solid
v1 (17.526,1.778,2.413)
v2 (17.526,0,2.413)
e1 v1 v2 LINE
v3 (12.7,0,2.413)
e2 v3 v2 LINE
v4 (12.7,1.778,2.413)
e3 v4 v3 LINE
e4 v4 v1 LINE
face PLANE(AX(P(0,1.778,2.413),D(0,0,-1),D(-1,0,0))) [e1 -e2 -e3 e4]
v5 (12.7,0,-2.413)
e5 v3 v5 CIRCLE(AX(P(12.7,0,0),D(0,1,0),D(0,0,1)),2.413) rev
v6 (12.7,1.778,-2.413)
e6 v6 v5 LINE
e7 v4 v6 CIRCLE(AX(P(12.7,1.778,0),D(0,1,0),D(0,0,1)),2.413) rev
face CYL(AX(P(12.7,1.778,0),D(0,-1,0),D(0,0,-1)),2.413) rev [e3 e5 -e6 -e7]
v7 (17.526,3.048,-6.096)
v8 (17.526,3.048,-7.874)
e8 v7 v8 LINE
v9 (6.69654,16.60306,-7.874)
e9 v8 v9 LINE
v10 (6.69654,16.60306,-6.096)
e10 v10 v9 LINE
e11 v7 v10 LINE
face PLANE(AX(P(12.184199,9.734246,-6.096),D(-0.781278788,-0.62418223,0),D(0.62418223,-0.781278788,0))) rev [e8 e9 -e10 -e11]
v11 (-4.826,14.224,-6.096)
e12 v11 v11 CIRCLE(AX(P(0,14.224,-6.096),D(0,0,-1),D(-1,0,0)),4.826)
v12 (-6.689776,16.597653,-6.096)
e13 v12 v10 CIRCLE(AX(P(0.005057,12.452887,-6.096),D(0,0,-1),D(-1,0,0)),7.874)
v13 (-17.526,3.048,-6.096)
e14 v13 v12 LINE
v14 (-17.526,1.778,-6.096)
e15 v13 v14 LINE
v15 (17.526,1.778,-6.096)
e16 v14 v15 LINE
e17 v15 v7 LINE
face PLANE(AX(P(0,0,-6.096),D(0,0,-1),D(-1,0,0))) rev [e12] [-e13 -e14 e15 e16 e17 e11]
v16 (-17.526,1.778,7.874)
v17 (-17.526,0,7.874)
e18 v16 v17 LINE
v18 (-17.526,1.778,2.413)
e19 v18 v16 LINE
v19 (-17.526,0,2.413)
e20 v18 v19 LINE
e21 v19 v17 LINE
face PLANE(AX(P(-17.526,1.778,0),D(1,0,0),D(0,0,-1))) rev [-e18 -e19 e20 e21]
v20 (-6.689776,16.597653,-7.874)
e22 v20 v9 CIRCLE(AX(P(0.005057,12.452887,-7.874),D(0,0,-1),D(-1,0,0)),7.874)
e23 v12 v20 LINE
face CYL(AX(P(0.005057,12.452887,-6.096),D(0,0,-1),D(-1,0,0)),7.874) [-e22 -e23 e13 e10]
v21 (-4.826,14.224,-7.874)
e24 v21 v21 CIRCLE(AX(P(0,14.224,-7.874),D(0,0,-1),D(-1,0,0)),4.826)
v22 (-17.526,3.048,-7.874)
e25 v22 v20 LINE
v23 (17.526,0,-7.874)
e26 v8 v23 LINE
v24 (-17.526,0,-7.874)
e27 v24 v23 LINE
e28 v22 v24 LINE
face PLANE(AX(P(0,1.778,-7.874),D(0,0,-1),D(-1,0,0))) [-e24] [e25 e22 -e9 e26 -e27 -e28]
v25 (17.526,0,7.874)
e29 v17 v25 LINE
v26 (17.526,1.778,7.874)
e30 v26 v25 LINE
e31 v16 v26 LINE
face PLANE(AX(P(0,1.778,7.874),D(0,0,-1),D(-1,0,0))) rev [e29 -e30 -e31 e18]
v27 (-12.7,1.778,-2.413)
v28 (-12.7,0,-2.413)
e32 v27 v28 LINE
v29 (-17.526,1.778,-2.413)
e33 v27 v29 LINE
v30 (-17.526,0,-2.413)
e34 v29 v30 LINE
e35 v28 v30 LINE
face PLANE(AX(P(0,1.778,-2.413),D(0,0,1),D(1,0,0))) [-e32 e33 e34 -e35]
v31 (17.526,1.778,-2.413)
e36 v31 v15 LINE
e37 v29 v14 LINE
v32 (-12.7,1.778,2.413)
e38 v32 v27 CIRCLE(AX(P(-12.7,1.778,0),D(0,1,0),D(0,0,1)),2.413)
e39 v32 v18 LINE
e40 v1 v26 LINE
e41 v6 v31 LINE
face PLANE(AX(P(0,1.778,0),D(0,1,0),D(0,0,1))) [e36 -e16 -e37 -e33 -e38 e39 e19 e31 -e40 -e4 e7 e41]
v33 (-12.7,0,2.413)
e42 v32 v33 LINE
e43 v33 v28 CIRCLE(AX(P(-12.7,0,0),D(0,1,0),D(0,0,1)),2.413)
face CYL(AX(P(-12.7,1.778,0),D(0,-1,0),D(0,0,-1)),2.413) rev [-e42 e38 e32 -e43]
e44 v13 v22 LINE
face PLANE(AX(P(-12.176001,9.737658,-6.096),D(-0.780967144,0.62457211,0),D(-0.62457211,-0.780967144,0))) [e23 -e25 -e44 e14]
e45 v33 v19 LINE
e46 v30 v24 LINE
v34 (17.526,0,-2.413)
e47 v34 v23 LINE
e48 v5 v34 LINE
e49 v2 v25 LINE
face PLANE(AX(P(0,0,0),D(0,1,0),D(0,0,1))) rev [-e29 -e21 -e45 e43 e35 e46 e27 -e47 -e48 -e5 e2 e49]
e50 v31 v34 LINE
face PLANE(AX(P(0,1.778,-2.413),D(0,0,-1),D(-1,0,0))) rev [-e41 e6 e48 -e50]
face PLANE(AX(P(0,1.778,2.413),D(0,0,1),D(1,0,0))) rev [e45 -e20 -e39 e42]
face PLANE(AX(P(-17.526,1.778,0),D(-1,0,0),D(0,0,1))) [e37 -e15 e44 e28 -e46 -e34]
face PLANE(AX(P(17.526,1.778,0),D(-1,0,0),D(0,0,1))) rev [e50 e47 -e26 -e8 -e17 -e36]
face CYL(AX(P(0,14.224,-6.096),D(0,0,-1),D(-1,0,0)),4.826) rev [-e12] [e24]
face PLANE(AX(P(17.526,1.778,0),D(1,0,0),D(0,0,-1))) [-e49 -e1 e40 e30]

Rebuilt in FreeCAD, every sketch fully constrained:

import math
import FreeCAD as App
import Part
import Sketcher
Q = App.Units.Quantity

doc = App.newDocument("Part")
body = doc.addObject("PartDesign::Body", "Body")

# Sketch on XZ plane
sketch1 = body.newObject("Sketcher::SketchObject", "Sketch")
sketch1.AttachmentSupport = (doc.getObject("XZ_Plane"), [""])
sketch1.MapMode = "FlatFace"
sketch1.addGeometry(Part.LineSegment(App.Vector(-17.526, -2.413, 0), App.Vector(-12.7, -2.413, 0)), False)
sketch1.addGeometry(Part.ArcOfCircle(Part.Circle(App.Vector(-12.7, 0, 0), App.Vector(0, 0, 1), 2.413), math.radians(-90), math.radians(0)), False)
sketch1.addGeometry(Part.ArcOfCircle(Part.Circle(App.Vector(-12.7, 0, 0), App.Vector(0, 0, 1), 2.413), math.radians(0), math.radians(90)), False)
sketch1.addGeometry(Part.LineSegment(App.Vector(-12.7, 2.413, 0), App.Vector(-17.526, 2.413, 0)), False)
sketch1.addGeometry(Part.LineSegment(App.Vector(-17.526, 2.413, 0), App.Vector(-17.526, 7.874, 0)), False)
sketch1.addGeometry(Part.LineSegment(App.Vector(-17.526, 7.874, 0), App.Vector(17.526, 7.874, 0)), False)
sketch1.addGeometry(Part.LineSegment(App.Vector(17.526, 7.874, 0), App.Vector(17.526, 2.413, 0)), False)
sketch1.addGeometry(Part.LineSegment(App.Vector(17.526, 2.413, 0), App.Vector(12.7, 2.413, 0)), False)
sketch1.addGeometry(Part.ArcOfCircle(Part.Circle(App.Vector(12.7, 0, 0), App.Vector(0, 0, 1), 2.413), math.radians(90), math.radians(270)), False)
sketch1.addGeometry(Part.LineSegment(App.Vector(12.7, -2.413, 0), App.Vector(17.526, -2.413, 0)), False)
sketch1.addGeometry(Part.LineSegment(App.Vector(17.526, -2.413, 0), App.Vector(17.526, -7.874, 0)), False)
sketch1.addGeometry(Part.LineSegment(App.Vector(17.526, -7.874, 0), App.Vector(-17.526, -7.874, 0)), False)
sketch1.addGeometry(Part.LineSegment(App.Vector(-17.526, -7.874, 0), App.Vector(-17.526, -2.413, 0)), False)
sketch1.addConstraint(Sketcher.Constraint("Tangent", 0, 2, 1, 1))
sketch1.addConstraint(Sketcher.Constraint("Tangent", 1, 2, 2, 1))
sketch1.addConstraint(Sketcher.Constraint("Tangent", 2, 2, 3, 1))
sketch1.addConstraint(Sketcher.Constraint("Coincident", 3, 2, 4, 1))
sketch1.addConstraint(Sketcher.Constraint("Coincident", 4, 2, 5, 1))
sketch1.addConstraint(Sketcher.Constraint("Coincident", 5, 2, 6, 1))
sketch1.addConstraint(Sketcher.Constraint("Coincident", 6, 2, 7, 1))
sketch1.addConstraint(Sketcher.Constraint("Tangent", 7, 2, 8, 1))
sketch1.addConstraint(Sketcher.Constraint("Tangent", 8, 2, 9, 1))
sketch1.addConstraint(Sketcher.Constraint("Coincident", 9, 2, 10, 1))
sketch1.addConstraint(Sketcher.Constraint("Coincident", 10, 2, 11, 1))
sketch1.addConstraint(Sketcher.Constraint("Coincident", 11, 2, 12, 1))
sketch1.addConstraint(Sketcher.Constraint("Coincident", 12, 2, 0, 1))
sketch1.addConstraint(Sketcher.Constraint("Horizontal", 0))
sketch1.addConstraint(Sketcher.Constraint("Horizontal", 3))
sketch1.addConstraint(Sketcher.Constraint("Vertical", 4))
sketch1.addConstraint(Sketcher.Constraint("Horizontal", 5))
sketch1.addConstraint(Sketcher.Constraint("Vertical", 6))
sketch1.addConstraint(Sketcher.Constraint("Horizontal", 7))
sketch1.addConstraint(Sketcher.Constraint("Horizontal", 9))
sketch1.addConstraint(Sketcher.Constraint("Vertical", 10))
sketch1.addConstraint(Sketcher.Constraint("Horizontal", 11))
sketch1.addConstraint(Sketcher.Constraint("Vertical", 12))
sketch1.addConstraint(Sketcher.Constraint("Equal", 1, 2))
sketch1.addConstraint(Sketcher.Constraint("Equal", 2, 8))
sketch1.addConstraint(Sketcher.Constraint("Symmetric", 1, 3, 8, 3, -1, 1))
sketch1.addConstraint(Sketcher.Constraint("Symmetric", 4, 2, 10, 2, -1, 1))
sketch1.addConstraint(Sketcher.Constraint("Symmetric", 3, 2, 6, 2, -2))
sketch1.addConstraint(Sketcher.Constraint("PointOnObject", 1, 2, -1))
sketch1.addConstraint(Sketcher.Constraint("Vertical", 4, 2, 11, 2))
sketch1.addConstraint(Sketcher.Constraint("Radius", 1, Q("0.095 in")))
sketch1.addConstraint(Sketcher.Constraint("DistanceX", 1, 3, 8, 3, Q("1 in")))
sketch1.addConstraint(Sketcher.Constraint("DistanceX", 0, 1, 0, 2, Q("0.19 in")))
sketch1.addConstraint(Sketcher.Constraint("DistanceY", 4, 1, 4, 2, Q("0.215 in")))
pad1 = body.newObject("PartDesign::Pad", "Pad")
pad1.Profile = sketch1
pad1.Length = Q("0.07 in")
pad1.Reversed = True

# Sketch on XY plane
sketch2 = body.newObject("Sketcher::SketchObject", "Sketch001")
sketch2.AttachmentSupport = (doc.getObject("XY_Plane"), [""])
sketch2.MapMode = "FlatFace"
sketch2.AttachmentOffset = App.Placement(App.Vector(0, 0, -0.31 * 25.4), App.Rotation())
sketch2.addGeometry(Part.LineSegment(App.Vector(-17.526, 3.048, 0), App.Vector(-6.689776, 16.597653, 0)), False)
sketch2.addGeometry(Part.ArcOfCircle(Part.Circle(App.Vector(0.005057, 12.452887, 0), App.Vector(0, 0, 1), 7.874), math.radians(31.807906), math.radians(148.23838)), False)
sketch2.addGeometry(Part.LineSegment(App.Vector(6.69654, 16.60306, 0), App.Vector(17.526, 3.048, 0)), False)
sketch2.addGeometry(Part.LineSegment(App.Vector(17.526, 3.048, 0), App.Vector(17.526, 1.778, 0)), False)
sketch2.addGeometry(Part.LineSegment(App.Vector(17.526, 1.778, 0), App.Vector(-17.526, 1.778, 0)), False)
sketch2.addGeometry(Part.LineSegment(App.Vector(-17.526, 1.778, 0), App.Vector(-17.526, 3.048, 0)), False)
sketch2.addGeometry(Part.Circle(App.Vector(0, 14.224, 0), App.Vector(0, 0, 1), 4.826), False)
sketch2.addConstraint(Sketcher.Constraint("Coincident", 0, 2, 1, 2))
sketch2.addConstraint(Sketcher.Constraint("Coincident", 1, 1, 2, 1))
sketch2.addConstraint(Sketcher.Constraint("Coincident", 2, 2, 3, 1))
sketch2.addConstraint(Sketcher.Constraint("Coincident", 3, 2, 4, 1))
sketch2.addConstraint(Sketcher.Constraint("Coincident", 4, 2, 5, 1))
sketch2.addConstraint(Sketcher.Constraint("Coincident", 5, 2, 0, 1))
sketch2.addConstraint(Sketcher.Constraint("Vertical", 3))
sketch2.addConstraint(Sketcher.Constraint("Horizontal", 4))
sketch2.addConstraint(Sketcher.Constraint("Vertical", 5))
sketch2.addConstraint(Sketcher.Constraint("Symmetric", 2, 2, 5, 2, -2))
sketch2.addConstraint(Sketcher.Constraint("PointOnObject", 6, 3, -2))
sketch2.addConstraint(Sketcher.Constraint("Equal", 0, 2))
sketch2.addConstraint(Sketcher.Constraint("Diameter", 6, Q("0.38 in")))
sketch2.addConstraint(Sketcher.Constraint("Radius", 1, Q("0.31 in")))
sketch2.addConstraint(Sketcher.Constraint("DistanceX", 4, 2, 4, 1, Q("1.38 in")))
sketch2.addConstraint(Sketcher.Constraint("DistanceY", 3, 2, 3, 1, Q("0.05 in")))
sketch2.addConstraint(Sketcher.Constraint("DistanceY", -1, 1, 6, 3, Q("0.56 in")))
sketch2.addConstraint(Sketcher.Constraint("DistanceY", -1, 1, 2, 2, Q("0.12 in")))
sketch2.addConstraint(Sketcher.Constraint("DistanceX", -1, 1, 1, 1, 6.69654))
sketch2.addConstraint(Sketcher.Constraint("DistanceY", -1, 1, 1, 1, 16.60306))
sketch2.addConstraint(Sketcher.Constraint("DistanceX", -1, 1, 1, 3, 0.005057))
pad2 = body.newObject("PartDesign::Pad", "Pad001")
pad2.Profile = sketch2
pad2.Length = Q("0.07 in")

doc.recompute()
